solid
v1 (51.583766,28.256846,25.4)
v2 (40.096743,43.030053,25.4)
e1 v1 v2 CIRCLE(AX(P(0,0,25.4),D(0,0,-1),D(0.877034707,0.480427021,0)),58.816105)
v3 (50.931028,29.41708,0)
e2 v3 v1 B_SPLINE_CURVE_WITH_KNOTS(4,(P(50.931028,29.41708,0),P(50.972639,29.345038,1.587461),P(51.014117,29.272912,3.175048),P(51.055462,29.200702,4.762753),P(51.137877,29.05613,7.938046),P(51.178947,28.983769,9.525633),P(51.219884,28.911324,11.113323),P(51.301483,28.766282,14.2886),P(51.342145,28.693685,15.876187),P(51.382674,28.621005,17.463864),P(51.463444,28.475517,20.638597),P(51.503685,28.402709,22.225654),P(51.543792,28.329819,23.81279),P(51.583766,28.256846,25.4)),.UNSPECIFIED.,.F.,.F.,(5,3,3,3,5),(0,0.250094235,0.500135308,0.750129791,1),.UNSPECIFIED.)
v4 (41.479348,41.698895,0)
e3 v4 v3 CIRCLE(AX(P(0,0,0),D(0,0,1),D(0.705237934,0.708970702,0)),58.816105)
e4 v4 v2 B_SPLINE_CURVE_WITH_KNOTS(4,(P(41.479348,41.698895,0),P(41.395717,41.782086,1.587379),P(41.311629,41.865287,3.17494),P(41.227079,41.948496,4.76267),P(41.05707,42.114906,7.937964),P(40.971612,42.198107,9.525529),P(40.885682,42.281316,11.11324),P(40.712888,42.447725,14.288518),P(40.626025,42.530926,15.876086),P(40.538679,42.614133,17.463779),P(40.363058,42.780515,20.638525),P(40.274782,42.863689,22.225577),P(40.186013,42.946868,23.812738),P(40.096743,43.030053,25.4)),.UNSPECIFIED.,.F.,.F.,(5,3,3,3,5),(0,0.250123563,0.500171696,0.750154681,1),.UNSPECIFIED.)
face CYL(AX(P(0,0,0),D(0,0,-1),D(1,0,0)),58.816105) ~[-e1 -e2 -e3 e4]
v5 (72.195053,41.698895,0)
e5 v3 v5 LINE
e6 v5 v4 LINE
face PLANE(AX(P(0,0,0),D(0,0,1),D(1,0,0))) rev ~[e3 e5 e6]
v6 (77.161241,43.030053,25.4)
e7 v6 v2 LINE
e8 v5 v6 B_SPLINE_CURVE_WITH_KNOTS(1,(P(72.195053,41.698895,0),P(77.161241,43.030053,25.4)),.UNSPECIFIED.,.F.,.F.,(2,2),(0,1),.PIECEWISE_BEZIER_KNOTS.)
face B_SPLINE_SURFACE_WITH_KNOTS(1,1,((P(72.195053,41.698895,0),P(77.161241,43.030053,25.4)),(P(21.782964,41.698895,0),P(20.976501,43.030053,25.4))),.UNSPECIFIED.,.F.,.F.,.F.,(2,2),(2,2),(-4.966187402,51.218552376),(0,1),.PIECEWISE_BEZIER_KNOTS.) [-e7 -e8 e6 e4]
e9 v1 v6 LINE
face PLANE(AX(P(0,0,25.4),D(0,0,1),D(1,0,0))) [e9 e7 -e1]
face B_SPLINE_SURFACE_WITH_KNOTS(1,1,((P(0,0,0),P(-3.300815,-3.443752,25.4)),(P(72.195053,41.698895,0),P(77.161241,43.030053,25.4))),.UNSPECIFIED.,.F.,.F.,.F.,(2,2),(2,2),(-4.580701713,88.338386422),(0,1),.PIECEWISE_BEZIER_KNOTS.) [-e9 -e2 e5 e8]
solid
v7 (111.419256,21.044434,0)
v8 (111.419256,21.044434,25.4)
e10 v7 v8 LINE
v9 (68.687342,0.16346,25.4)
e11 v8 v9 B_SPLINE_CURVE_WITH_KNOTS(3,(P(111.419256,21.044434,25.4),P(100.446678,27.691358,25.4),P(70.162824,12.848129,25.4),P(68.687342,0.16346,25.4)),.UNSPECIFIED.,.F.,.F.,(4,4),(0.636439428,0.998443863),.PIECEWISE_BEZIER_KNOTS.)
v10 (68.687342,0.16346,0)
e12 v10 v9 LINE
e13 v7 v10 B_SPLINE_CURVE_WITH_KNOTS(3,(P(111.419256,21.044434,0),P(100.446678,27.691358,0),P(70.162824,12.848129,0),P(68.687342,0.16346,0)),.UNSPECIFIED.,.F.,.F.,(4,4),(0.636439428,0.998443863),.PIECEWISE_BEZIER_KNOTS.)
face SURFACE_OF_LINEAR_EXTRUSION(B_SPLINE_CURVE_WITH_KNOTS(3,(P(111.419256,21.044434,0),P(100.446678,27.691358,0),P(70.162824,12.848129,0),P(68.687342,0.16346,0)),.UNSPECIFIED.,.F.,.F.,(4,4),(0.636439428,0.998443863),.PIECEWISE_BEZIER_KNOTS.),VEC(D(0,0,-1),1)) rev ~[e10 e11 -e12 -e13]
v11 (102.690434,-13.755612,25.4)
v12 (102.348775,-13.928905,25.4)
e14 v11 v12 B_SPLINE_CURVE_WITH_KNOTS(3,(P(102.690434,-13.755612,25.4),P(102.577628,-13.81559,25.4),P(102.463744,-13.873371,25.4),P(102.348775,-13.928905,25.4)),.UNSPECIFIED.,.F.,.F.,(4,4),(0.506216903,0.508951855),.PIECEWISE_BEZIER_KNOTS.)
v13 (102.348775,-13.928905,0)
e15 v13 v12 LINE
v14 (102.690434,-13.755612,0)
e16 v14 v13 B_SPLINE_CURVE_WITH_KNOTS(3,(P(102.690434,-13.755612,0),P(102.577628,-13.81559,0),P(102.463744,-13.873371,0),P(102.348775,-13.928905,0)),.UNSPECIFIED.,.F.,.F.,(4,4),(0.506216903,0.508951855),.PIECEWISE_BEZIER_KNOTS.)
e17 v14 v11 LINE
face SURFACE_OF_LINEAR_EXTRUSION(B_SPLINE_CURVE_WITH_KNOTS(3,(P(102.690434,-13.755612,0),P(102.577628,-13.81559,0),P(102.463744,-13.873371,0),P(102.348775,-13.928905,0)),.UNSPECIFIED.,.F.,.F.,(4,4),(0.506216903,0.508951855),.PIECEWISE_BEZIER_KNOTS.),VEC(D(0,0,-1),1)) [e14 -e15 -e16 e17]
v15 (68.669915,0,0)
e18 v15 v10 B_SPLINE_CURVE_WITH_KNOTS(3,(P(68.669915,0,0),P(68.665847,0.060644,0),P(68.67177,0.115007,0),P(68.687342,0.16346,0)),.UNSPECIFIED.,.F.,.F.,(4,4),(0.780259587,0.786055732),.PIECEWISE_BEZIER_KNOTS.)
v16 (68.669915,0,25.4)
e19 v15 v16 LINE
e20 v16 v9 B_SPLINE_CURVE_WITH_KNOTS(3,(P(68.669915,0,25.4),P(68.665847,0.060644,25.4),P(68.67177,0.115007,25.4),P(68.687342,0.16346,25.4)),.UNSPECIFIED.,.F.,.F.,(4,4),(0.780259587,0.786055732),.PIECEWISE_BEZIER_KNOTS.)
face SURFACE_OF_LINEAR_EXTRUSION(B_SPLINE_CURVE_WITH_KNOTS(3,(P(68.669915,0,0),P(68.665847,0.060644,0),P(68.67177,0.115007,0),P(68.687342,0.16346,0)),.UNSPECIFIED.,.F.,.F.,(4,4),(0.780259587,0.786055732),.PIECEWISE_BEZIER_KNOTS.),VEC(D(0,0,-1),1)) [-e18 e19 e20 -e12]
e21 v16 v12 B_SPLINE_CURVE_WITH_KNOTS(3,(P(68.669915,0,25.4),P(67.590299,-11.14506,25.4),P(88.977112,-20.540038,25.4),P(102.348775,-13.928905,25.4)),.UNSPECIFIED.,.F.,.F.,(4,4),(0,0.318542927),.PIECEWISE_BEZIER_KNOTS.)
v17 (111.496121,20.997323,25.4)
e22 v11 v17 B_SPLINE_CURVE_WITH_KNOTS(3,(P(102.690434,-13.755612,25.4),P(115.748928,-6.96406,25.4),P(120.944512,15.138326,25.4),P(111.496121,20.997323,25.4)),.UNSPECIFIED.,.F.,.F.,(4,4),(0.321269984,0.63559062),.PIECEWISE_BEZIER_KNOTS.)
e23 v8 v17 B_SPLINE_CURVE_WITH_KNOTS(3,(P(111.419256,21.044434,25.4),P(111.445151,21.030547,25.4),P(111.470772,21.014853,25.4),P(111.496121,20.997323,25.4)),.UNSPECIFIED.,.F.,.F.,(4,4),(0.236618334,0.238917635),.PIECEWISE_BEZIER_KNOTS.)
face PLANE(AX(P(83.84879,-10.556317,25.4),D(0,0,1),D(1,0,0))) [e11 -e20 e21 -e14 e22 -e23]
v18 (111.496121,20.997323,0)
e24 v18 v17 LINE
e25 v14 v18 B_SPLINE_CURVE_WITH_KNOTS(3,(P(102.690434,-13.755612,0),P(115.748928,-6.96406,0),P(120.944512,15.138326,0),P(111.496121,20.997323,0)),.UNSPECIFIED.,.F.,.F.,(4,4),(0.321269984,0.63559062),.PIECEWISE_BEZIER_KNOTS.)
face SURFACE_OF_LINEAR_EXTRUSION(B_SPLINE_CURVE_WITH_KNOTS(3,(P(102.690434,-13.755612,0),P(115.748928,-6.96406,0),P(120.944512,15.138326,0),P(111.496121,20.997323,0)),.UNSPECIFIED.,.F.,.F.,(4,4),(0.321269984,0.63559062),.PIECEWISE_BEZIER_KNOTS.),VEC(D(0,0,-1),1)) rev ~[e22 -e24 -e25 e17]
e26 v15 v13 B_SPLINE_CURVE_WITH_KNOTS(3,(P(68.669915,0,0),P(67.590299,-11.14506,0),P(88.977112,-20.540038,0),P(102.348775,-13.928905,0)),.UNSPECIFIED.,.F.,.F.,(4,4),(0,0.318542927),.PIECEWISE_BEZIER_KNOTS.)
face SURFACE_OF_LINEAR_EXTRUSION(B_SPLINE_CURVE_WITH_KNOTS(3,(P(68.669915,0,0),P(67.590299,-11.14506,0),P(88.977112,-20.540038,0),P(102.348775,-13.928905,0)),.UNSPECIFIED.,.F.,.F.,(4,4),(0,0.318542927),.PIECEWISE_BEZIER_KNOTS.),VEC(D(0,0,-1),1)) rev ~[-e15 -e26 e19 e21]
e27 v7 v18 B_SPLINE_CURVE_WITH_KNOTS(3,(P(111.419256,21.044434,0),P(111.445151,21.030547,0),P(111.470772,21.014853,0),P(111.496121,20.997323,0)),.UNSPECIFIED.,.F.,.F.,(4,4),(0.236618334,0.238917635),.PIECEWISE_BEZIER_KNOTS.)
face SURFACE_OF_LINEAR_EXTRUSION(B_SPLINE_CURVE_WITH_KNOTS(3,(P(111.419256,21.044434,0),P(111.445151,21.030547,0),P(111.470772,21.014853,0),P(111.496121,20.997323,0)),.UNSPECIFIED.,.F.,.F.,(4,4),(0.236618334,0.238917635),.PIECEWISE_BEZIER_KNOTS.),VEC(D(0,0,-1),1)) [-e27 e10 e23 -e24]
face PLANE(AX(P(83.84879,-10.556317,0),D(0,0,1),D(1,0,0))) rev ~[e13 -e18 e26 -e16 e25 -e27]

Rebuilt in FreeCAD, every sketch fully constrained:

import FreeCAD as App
import Part
import Sketcher
Q = App.Units.Quantity

doc = App.newDocument("Part")
body = doc.addObject("PartDesign::Body", "Body")

sketch1 = doc.addObject("Sketcher::SketchObject", "Sketch")
body.addObject(sketch1)
sketch1.AttachmentSupport = (doc.XY_Plane, [""])
sketch1.MapMode = "FlatFace"
sketch1.addGeometry(Part.LineSegment(App.Vector(72, 42, 0), App.Vector(22, 42, 0)), False)
sketch1.addGeometry(Part.LineSegment(App.Vector(22, 42, 0), App.Vector(0, 0, 0)), False)
sketch1.addGeometry(Part.LineSegment(App.Vector(0, 0, 0), App.Vector(72, 42, 0)), False)
sketch1.addConstraint(Sketcher.Constraint("Coincident", 0, 2, 1, 1))
sketch1.addConstraint(Sketcher.Constraint("Coincident", 1, 2, 2, 1))
sketch1.addConstraint(Sketcher.Constraint("Coincident", 2, 2, 0, 1))
sketch1.addConstraint(Sketcher.Constraint("Horizontal", 0))
sketch1.addConstraint(Sketcher.Constraint("Coincident", 1, 2, -1, 1))
sketch1.addConstraint(Sketcher.Constraint("Distance", 2, Q("83.372199 mm")))
sketch1.addConstraint(Sketcher.Constraint("DistanceX", 0, 2, 0, 1, Q("50.412089 mm")))
sketch1.addConstraint(Sketcher.Constraint("Distance", 1, Q("47.045674 mm")))
pad1 = doc.addObject("PartDesign::Pad", "Pad")
body.addObject(pad1)
pad1.Profile = sketch1
pad1.Length = Q("1 in")
pad1.TaperAngle = 3

sketch2 = doc.addObject("Sketcher::SketchObject", "Sketch001")
body.addObject(sketch2)
sketch2.AttachmentSupport = (doc.XY_Plane, [""])
sketch2.MapMode = "FlatFace"
sketch2.addGeometry(Part.Circle(App.Vector(0, 0, 0), App.Vector(0, 0, 1), 59), False)
sketch2.addConstraint(Sketcher.Constraint("Coincident", 0, 3, -1, 1))
sketch2.addConstraint(Sketcher.Constraint("Diameter", 0, Q("117.63221 mm")))
pad2 = doc.addObject("PartDesign::Pad", "Pad001")
body.addObject(pad2)
pad2.Profile = sketch2
pad2.Length = Q("1 in")
body2 = doc.addObject("PartDesign::Body", "Body001")

sketch3 = doc.addObject("Sketcher::SketchObject", "Sketch002")
body2.addObject(sketch3)
sketch3.AttachmentSupport = (doc.getObject("XY_Plane001"), [""])
sketch3.MapMode = "FlatFace"
sketch3.addGeometry(Part.BSplineCurve([App.Vector(68.669915, 0, 0), App.Vector(67.590299, -11.14506, 0), App.Vector(88.977112, -20.540038, 0), App.Vector(102.348775, -13.928905, 0)], [4, 4], [0, 0.318542927], False, 3, [1, 1, 1, 1], False), False)
sketch3.addGeometry(Part.BSplineCurve([App.Vector(102.690434, -13.755612, 0), App.Vector(102.577628, -13.81559, 0), App.Vector(102.463744, -13.873371, 0), App.Vector(102.348775, -13.928905, 0)], [4, 4], [0.506216903, 0.508951855], False, 3, [1, 1, 1, 1], False), False)
sketch3.addGeometry(Part.BSplineCurve([App.Vector(102.690434, -13.755612, 0), App.Vector(115.748928, -6.96406, 0), App.Vector(120.944512, 15.138326, 0), App.Vector(111.496121, 20.997323, 0)], [4, 4], [0.321269984, 0.63559062], False, 3, [1, 1, 1, 1], False), False)
sketch3.addGeometry(Part.BSplineCurve([App.Vector(111.419256, 21.044434, 0), App.Vector(111.445151, 21.030547, 0), App.Vector(111.470772, 21.014853, 0), App.Vector(111.496121, 20.997323, 0)], [4, 4], [0.236618334, 0.238917635], False, 3, [1, 1, 1, 1], False), False)
sketch3.addGeometry(Part.BSplineCurve([App.Vector(111.419256, 21.044434, 0), App.Vector(100.446678, 27.691358, 0), App.Vector(70.162824, 12.848129, 0), App.Vector(68.687342, 0.16346, 0)], [4, 4], [0.636439428, 0.998443863], False, 3, [1, 1, 1, 1], False), False)
sketch3.addGeometry(Part.BSplineCurve([App.Vector(68.669915, 0, 0), App.Vector(68.665847, 0.060644, 0), App.Vector(68.67177, 0.115007, 0), App.Vector(68.687342, 0.16346, 0)], [4, 4], [0.780259587, 0.786055732], False, 3, [1, 1, 1, 1], False), False)
sketch3.addConstraint(Sketcher.Constraint("Block", 0))
sketch3.addConstraint(Sketcher.Constraint("Block", 1))
sketch3.addConstraint(Sketcher.Constraint("Block", 2))
sketch3.addConstraint(Sketcher.Constraint("Block", 3))
sketch3.addConstraint(Sketcher.Constraint("Block", 4))
sketch3.addConstraint(Sketcher.Constraint("Block", 5))
pad3 = doc.addObject("PartDesign::Pad", "Pad002")
body2.addObject(pad3)
pad3.Profile = sketch3
pad3.Length = Q("1 in")

doc.recompute()
